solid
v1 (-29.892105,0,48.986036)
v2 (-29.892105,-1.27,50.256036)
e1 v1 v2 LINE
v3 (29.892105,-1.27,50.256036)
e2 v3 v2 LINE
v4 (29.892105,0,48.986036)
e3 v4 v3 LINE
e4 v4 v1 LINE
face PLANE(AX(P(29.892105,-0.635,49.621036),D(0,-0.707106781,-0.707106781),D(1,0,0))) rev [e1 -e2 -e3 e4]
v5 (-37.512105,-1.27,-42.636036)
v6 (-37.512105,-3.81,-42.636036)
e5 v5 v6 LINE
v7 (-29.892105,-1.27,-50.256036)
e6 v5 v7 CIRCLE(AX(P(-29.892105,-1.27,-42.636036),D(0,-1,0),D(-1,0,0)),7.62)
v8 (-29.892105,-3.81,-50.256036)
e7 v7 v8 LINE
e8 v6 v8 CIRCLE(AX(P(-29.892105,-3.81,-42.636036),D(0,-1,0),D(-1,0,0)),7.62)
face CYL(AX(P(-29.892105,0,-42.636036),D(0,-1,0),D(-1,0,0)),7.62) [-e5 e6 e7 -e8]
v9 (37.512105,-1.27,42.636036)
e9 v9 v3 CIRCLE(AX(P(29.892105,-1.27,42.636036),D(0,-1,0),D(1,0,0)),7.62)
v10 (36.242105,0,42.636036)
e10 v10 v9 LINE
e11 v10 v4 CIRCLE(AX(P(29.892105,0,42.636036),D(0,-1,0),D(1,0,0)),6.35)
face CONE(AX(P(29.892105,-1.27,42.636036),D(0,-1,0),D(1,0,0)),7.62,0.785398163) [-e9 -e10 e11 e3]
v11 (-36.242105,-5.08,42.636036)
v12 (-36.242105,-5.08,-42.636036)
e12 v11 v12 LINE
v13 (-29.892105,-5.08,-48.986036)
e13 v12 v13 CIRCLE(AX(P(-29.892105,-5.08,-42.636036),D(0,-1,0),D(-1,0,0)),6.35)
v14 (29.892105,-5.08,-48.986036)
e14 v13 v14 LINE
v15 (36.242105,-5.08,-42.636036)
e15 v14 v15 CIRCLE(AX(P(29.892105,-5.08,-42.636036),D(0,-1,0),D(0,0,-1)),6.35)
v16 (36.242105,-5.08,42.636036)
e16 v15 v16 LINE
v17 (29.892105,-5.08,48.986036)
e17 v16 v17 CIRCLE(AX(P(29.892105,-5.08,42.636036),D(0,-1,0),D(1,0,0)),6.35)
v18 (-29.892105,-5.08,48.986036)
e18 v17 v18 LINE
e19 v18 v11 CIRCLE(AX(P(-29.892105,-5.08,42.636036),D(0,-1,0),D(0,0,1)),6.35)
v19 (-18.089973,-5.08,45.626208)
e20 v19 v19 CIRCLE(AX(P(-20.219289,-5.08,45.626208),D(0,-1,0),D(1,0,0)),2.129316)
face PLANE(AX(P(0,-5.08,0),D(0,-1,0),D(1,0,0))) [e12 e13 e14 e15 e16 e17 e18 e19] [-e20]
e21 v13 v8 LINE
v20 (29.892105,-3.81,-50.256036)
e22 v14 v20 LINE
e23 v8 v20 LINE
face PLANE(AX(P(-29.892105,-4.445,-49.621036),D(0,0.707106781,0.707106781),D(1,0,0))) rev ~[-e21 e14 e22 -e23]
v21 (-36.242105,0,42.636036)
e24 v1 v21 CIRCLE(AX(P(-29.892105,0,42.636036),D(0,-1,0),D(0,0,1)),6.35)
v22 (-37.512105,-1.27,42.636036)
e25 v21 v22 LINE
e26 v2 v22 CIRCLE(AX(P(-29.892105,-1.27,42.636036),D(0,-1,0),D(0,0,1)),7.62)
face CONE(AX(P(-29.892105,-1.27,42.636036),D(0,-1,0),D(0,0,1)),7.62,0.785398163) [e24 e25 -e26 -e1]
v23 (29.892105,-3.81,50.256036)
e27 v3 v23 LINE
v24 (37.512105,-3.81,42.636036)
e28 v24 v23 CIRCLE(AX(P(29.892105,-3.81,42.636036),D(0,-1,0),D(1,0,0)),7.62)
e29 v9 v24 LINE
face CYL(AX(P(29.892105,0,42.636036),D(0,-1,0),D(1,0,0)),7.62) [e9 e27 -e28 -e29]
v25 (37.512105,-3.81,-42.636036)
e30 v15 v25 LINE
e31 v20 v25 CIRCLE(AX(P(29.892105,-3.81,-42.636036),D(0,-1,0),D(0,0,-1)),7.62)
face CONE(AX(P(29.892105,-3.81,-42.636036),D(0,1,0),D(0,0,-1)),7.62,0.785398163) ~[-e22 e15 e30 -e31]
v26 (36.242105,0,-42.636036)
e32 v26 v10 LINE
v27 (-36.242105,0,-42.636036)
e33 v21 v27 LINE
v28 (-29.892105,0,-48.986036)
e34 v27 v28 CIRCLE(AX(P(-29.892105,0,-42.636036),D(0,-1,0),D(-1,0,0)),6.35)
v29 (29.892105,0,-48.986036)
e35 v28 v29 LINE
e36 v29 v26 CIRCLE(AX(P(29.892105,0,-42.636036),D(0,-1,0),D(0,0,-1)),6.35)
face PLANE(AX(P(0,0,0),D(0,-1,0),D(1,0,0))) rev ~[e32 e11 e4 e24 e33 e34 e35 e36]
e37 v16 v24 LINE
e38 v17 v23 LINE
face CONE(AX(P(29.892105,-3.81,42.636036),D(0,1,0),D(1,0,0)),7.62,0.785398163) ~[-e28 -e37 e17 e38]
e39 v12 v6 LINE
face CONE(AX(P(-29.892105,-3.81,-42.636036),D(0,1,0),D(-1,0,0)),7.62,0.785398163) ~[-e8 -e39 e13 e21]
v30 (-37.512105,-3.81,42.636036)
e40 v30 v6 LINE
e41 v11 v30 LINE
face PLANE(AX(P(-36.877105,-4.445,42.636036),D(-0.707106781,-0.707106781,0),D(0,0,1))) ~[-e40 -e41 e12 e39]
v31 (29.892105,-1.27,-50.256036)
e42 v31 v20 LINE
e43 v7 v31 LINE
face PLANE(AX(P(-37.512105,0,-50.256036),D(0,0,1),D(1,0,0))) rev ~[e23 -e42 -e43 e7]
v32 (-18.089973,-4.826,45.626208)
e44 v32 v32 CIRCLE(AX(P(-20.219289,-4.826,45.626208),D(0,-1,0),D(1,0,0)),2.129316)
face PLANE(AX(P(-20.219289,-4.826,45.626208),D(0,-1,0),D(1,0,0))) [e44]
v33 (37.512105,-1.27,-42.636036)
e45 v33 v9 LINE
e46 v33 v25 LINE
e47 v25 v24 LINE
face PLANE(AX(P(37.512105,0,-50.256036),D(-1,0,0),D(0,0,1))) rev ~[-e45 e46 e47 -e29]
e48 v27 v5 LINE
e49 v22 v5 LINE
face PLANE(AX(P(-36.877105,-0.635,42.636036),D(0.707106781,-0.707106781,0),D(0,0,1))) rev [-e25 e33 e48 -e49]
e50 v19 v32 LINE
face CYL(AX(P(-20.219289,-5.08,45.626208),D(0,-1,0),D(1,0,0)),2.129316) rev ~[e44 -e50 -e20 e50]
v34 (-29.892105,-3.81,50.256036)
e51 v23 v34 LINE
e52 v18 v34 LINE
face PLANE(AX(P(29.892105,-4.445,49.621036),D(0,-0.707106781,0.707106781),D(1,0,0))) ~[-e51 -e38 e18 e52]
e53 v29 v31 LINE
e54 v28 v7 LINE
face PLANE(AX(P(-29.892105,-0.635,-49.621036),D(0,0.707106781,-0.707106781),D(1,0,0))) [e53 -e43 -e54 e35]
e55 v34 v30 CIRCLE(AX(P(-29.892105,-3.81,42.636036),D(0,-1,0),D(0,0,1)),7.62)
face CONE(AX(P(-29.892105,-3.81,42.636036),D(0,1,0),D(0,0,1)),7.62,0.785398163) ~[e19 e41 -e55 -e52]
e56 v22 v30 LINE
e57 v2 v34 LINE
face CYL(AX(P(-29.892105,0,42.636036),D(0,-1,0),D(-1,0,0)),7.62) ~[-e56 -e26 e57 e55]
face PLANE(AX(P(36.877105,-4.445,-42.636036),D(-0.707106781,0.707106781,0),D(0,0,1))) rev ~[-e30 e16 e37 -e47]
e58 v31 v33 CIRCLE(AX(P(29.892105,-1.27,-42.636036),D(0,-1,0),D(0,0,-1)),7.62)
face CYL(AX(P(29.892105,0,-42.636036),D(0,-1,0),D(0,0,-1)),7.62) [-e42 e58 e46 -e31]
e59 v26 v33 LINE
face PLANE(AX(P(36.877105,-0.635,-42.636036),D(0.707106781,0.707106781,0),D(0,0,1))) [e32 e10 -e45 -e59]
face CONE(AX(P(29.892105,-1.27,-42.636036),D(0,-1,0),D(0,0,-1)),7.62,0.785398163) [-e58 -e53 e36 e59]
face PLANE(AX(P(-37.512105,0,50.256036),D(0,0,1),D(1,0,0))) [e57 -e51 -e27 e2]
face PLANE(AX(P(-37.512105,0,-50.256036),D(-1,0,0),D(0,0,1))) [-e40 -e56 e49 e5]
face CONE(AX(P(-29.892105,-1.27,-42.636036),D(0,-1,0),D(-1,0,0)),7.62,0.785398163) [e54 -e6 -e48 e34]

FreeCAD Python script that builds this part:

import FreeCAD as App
import Part
import Sketcher

V = App.Vector
Q = App.Units.Quantity


def edges_at(feature, points):
    """Names of the edges that pass closest to the given points."""
    edges = feature.Shape.Edges
    near = lambda p: min(range(len(edges)), key=lambda i: edges[i].distToShape(Part.Vertex(*p))[0])
    return sorted({f"Edge{near(p) + 1}" for p in points})


def add_polygon(sketch, points):
    """Adds a closed chain of lines whose ends are joined by coincident constraints."""
    first, n = sketch.GeometryCount, len(points)
    for a, b in zip(points, points[1:] + points[:1]):
        sketch.addGeometry(Part.LineSegment(App.Vector(*a, 0), App.Vector(*b, 0)), False)
    for i in range(n):
        sketch.addConstraint(Sketcher.Constraint("Coincident", first + i, 2, first + (i + 1) % n, 1))

doc = App.newDocument("Part")
body = doc.addObject("PartDesign::Body", "Body")

# Sketch on XZ plane
sketch1 = body.newObject("Sketcher::SketchObject", "Sketch")
sketch1.AttachmentSupport = (doc.getObject("XZ_Plane"), [""])
sketch1.MapMode = "FlatFace"
add_polygon(sketch1, [(-38, 50), (-38, -50), (38, -50), (38, 50)])  # lines 0-3
sketch1.addConstraint([
    Sketcher.Constraint("Vertical", 0),
    Sketcher.Constraint("Horizontal", 1),
    Sketcher.Constraint("Vertical", 2),
    Sketcher.Constraint("Horizontal", 3),
    Sketcher.Constraint("Symmetric", 0, 2, 2, 2, -1, 1),
    Sketcher.Constraint("DistanceX", 1, 1, 1, 2, 75.02421),
    Sketcher.Constraint("DistanceY", 0, 2, 0, 1, 100.512072),
])
pad1 = body.newObject("PartDesign::Pad", "Pad")
pad1.Profile = sketch1
pad1.Length = Q("0.2 in")
doc.recompute()

fillet = body.newObject("PartDesign::Fillet", "Fillet")
fillet.Base = (pad1, edges_at(pad1, [
    (-37.512, -2.54, 50.256),
    (-37.512, -2.54, -50.256),
    (37.512, -2.54, 50.256),
    (37.512, -2.54, -50.256),
]))
fillet.Radius = Q("0.3 in")
doc.recompute()

chamfer = body.newObject("PartDesign::Chamfer", "Chamfer")
chamfer.Base = (fillet, edges_at(fillet, [
    (0, -5.08, -50.256),
    (-35.28, -5.08, -48.024),
    (35.28, -5.08, -48.024),
    (-37.512, -5.08, 0),
    (37.512, -5.08, 0),
    (-35.28, -5.08, 48.024),
    (35.28, -5.08, 48.024),
    (0, -5.08, 50.256),
]))
chamfer.Size = Q("0.05 in")

# Sketch on XZ plane
sketch2 = body.newObject("Sketcher::SketchObject", "Sketch001")
sketch2.AttachmentSupport = (doc.getObject("XZ_Plane"), [""])
sketch2.MapMode = "FlatFace"
sketch2.AttachmentOffset = App.Placement(V(0, 0, 0.2 * 25.4), App.Rotation())
sketch2.addGeometry(Part.Circle(V(-20.2, 45.6, 0), V(0, 0, 1), 2.1), False)
sketch2.addConstraint([
    Sketcher.Constraint("Diameter", 0, 4.258632),
    Sketcher.Constraint("DistanceX", 0, 3, -1, 1, 20.219289),
    Sketcher.Constraint("DistanceY", -1, 1, 0, 3, 45.626208),
])
pocket1 = body.newObject("PartDesign::Pocket", "Pocket")
pocket1.Profile = sketch2
pocket1.Length = Q("0.01 in")
doc.recompute()

chamfer2 = body.newObject("PartDesign::Chamfer", "Chamfer001")
chamfer2.Base = (pocket1, edges_at(pocket1, [
    (0, 0, -50.256),
    (-35.28, 0, -48.024),
    (35.28, 0, -48.024),
    (-37.512, 0, 0),
    (37.512, 0, 0),
    (-35.28, 0, 48.024),
    (35.28, 0, 48.024),
    (0, 0, 50.256),
]))
chamfer2.Size = Q("0.05 in")

doc.recompute()
